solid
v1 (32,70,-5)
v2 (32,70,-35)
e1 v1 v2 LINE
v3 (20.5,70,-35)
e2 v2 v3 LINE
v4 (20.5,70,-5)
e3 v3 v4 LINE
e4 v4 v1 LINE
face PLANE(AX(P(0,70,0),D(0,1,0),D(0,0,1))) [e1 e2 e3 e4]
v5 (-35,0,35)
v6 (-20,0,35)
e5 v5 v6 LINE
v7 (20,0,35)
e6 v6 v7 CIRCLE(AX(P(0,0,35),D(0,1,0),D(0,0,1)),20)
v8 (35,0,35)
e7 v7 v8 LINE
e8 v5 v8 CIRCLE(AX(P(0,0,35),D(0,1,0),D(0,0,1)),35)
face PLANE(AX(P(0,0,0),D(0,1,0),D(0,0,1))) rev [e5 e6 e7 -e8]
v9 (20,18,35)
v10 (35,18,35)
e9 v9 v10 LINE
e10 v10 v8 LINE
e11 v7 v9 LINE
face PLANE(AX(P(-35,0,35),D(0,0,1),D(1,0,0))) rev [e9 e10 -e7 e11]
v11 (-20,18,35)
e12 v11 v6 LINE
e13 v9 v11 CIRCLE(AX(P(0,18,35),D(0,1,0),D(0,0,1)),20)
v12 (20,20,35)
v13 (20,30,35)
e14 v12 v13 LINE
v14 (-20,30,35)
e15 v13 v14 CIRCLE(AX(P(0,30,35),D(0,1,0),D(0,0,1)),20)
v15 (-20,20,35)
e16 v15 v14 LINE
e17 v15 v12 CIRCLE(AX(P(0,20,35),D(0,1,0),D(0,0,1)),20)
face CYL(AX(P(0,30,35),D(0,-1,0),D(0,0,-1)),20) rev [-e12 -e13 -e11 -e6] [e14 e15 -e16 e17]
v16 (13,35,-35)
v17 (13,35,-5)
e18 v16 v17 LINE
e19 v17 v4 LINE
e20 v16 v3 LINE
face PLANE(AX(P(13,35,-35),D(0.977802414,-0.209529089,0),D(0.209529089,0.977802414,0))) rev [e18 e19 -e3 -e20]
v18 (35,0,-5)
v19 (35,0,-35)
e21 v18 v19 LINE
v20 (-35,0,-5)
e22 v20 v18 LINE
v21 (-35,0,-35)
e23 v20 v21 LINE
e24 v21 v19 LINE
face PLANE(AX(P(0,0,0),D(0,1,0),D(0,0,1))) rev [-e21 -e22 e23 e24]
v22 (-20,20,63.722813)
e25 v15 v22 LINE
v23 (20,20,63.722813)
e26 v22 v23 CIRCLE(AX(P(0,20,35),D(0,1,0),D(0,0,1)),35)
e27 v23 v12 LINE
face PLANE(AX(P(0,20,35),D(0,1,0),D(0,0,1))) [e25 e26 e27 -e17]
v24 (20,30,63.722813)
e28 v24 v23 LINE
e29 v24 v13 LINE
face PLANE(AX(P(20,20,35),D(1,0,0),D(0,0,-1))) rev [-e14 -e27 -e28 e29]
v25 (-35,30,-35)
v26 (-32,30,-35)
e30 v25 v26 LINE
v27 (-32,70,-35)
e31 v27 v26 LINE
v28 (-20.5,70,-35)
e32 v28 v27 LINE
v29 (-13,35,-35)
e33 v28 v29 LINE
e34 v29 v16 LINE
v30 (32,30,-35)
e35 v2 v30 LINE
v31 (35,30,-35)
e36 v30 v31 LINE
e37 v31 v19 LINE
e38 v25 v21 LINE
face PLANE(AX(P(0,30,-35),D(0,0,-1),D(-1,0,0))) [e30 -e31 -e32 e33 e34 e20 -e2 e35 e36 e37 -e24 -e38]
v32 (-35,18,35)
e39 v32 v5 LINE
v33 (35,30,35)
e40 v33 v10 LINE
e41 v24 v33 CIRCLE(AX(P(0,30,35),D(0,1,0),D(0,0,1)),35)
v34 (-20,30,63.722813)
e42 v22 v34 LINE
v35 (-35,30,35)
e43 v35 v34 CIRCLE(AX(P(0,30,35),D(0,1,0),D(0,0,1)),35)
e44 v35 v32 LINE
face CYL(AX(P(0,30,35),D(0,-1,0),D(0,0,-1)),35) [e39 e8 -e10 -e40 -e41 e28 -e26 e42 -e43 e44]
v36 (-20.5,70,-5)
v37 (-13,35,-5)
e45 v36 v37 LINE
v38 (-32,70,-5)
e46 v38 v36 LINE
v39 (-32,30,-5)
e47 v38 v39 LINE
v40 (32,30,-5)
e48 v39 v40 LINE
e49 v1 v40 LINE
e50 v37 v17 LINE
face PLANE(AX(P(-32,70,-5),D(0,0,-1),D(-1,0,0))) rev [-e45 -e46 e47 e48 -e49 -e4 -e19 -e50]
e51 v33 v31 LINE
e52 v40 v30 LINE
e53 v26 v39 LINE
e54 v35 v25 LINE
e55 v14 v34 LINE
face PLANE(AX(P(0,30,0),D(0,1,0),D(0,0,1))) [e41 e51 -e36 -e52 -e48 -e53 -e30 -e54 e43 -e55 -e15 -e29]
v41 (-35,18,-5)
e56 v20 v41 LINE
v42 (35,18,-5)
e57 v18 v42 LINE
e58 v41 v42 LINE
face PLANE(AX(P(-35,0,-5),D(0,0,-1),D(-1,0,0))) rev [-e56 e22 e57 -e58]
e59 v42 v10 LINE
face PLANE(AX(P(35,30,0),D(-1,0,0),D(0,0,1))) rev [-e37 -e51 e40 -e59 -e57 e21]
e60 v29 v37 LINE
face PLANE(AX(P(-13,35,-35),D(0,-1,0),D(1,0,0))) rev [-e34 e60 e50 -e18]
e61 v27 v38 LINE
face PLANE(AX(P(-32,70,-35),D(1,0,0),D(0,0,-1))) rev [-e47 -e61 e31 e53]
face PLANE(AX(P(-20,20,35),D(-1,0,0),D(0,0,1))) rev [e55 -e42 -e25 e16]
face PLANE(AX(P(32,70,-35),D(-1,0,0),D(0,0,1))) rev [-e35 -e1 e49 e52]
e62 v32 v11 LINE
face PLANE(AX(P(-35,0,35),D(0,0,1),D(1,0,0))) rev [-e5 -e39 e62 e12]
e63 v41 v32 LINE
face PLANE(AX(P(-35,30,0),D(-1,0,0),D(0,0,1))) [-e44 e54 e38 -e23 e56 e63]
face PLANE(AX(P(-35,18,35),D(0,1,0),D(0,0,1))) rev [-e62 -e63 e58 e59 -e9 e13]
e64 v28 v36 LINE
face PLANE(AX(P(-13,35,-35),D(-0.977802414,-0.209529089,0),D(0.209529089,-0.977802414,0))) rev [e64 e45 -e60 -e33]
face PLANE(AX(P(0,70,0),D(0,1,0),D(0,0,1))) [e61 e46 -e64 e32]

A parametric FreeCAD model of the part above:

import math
import FreeCAD as App
import Part
import Sketcher
Q = App.Units.Quantity


def add_polygon(sketch, points):
    """Adds a closed chain of lines whose ends are joined by coincident constraints."""
    first, n = sketch.GeometryCount, len(points)
    for a, b in zip(points, points[1:] + points[:1]):
        sketch.addGeometry(Part.LineSegment(App.Vector(*a, 0), App.Vector(*b, 0)), False)
    for i in range(n):
        sketch.addConstraint(Sketcher.Constraint("Coincident", first + i, 2, first + (i + 1) % n, 1))

doc = App.newDocument("Part")
params = doc.addObject("Spreadsheet::Sheet", "Params")
for row, (alias, value) in enumerate([
    ("sketch1_diameter", "40 mm"),
    ("sketch1_radius", "35 mm"),
    ("pad1_length", "30 mm"),
    ("sketch2_width", "18 mm"),
    ("sketch2_height", "40 mm"),
    ("pocket1_length", "70 mm"),
    ("sketch3_radius", "20 mm"),
    ("pocket2_length", "10 mm"),
    ("sketch4_width", "64 mm"),
    ("sketch4_height", "30 mm"),
    ("pad2_length", "40 mm"),
    ("sketch5_width", "41 mm"),
    ("sketch5_width2", "26 mm"),
], start=1):
    params.set(f"A{row}", alias)
    params.set(f"B{row}", "=" + value)
    params.setAlias(f"B{row}", alias)

body = doc.addObject("PartDesign::Body", "Body")

# Sketch on XZ plane
sketch1 = doc.addObject("Sketcher::SketchObject", "Sketch")
body.addObject(sketch1)
sketch1.AttachmentSupport = (doc.XZ_Plane, [""])
sketch1.MapMode = "FlatFace"
sketch1.addGeometry([
    Part.ArcOfCircle(Part.Circle(App.Vector(0, 35, 0), App.Vector(0, 0, 1), 35), math.radians(0), math.radians(180)),  # 0
    Part.LineSegment(App.Vector(35, 35, 0), App.Vector(35, -35, 0)),  # 1
    Part.LineSegment(App.Vector(35, -35, 0), App.Vector(-35, -35, 0)),  # 2
    Part.LineSegment(App.Vector(-35, -35, 0), App.Vector(-35, 35, 0)),  # 3
    Part.Circle(App.Vector(0, 35, 0), App.Vector(0, 0, 1), 20),  # 4
], False)
sketch1.addConstraint([
    Sketcher.Constraint("Tangent", 0, 1, 1, 1),
    Sketcher.Constraint("Coincident", 1, 2, 2, 1),
    Sketcher.Constraint("Coincident", 2, 2, 3, 1),
    Sketcher.Constraint("Tangent", 3, 2, 0, 2),
    Sketcher.Constraint("Vertical", 1),
    Sketcher.Constraint("Horizontal", 2),
    Sketcher.Constraint("Vertical", 3),
    Sketcher.Constraint("Coincident", 4, 3, 0, 3),
    Sketcher.Constraint("Symmetric", 0, 1, 2, 2, -1, 1),
    Sketcher.Constraint("Equal", 2, 1),
    Sketcher.Constraint("Diameter", 4, Q("40 mm")),
    Sketcher.Constraint("Radius", 0, Q("35 mm")),
])
sketch1.setExpression("Constraints[10]", "Params.sketch1_diameter")
sketch1.setExpression("Constraints[11]", "Params.sketch1_radius")
pad1 = doc.addObject("PartDesign::Pad", "Pad")
body.addObject(pad1)
pad1.Profile = sketch1
pad1.setExpression("Length", "Params.pad1_length")
pad1.Reversed = True

# Sketch on YZ plane
sketch2 = doc.addObject("Sketcher::SketchObject", "Sketch001")
body.addObject(sketch2)
sketch2.AttachmentSupport = (doc.YZ_Plane, [""])
sketch2.MapMode = "FlatFace"
sketch2.AttachmentOffset = App.Placement(App.Vector(0, 0, 35), App.Rotation())
add_polygon(sketch2, [(18, 35), (0, 35), (0, -5), (18, -5)])  # lines 0-3
sketch2.addConstraint([
    Sketcher.Constraint("Horizontal", 0),
    Sketcher.Constraint("Vertical", 1),
    Sketcher.Constraint("Horizontal", 2),
    Sketcher.Constraint("Vertical", 3),
    Sketcher.Constraint("PointOnObject", 0, 2, -2),
    Sketcher.Constraint("DistanceX", 0, 2, 0, 1, Q("18 mm")),
    Sketcher.Constraint("DistanceY", 1, 2, 1, 1, Q("40 mm")),
    Sketcher.Constraint("DistanceY", -1, 1, 0, 2, Q("35 mm")),
])
sketch2.setExpression("Constraints[9]", "Params.sketch2_width")
sketch2.setExpression("Constraints[10]", "Params.sketch2_height")
pocket1 = doc.addObject("PartDesign::Pocket", "Pocket")
body.addObject(pocket1)
pocket1.Profile = sketch2
pocket1.setExpression("Length", "Params.pocket1_length")

# Sketch on XZ plane
sketch3 = doc.addObject("Sketcher::SketchObject", "Sketch002")
body.addObject(sketch3)
sketch3.AttachmentSupport = (doc.XZ_Plane, [""])
sketch3.MapMode = "FlatFace"
sketch3.AttachmentOffset = App.Placement(App.Vector(0, 0, -20), App.Rotation())
sketch3.addGeometry([
    Part.LineSegment(App.Vector(20, 92, 0), App.Vector(20, 35, 0)),
    Part.ArcOfCircle(Part.Circle(App.Vector(0, 35, 0), App.Vector(0, 0, 1), 20), math.radians(180), math.radians(360)),
    Part.LineSegment(App.Vector(-20, 35, 0), App.Vector(-20, 92, 0)),
    Part.LineSegment(App.Vector(-20, 92, 0), App.Vector(20, 92, 0)),
], False)
sketch3.addConstraint([
    Sketcher.Constraint("Tangent", 0, 2, 1, 2),
    Sketcher.Constraint("Tangent", 1, 1, 2, 1),
    Sketcher.Constraint("Coincident", 2, 2, 3, 1),
    Sketcher.Constraint("Coincident", 3, 2, 0, 1),
    Sketcher.Constraint("Vertical", 0),
    Sketcher.Constraint("Vertical", 2),
    Sketcher.Constraint("Horizontal", 3),
    Sketcher.Constraint("PointOnObject", 1, 3, -2),
    Sketcher.Constraint("Radius", 1, Q("20 mm")),
    Sketcher.Constraint("DistanceY", -1, 1, 1, 3, Q("35 mm")),
    Sketcher.Constraint("DistanceY", 0, 2, 0, 1, Q("56.691085 mm")),
])
sketch3.setExpression("Constraints[8]", "Params.sketch3_radius")
pocket2 = doc.addObject("PartDesign::Pocket", "Pocket001")
body.addObject(pocket2)
pocket2.Profile = sketch3
pocket2.setExpression("Length", "Params.pocket2_length")

# Sketch on XZ plane
sketch4 = doc.addObject("Sketcher::SketchObject", "Sketch003")
body.addObject(sketch4)
sketch4.AttachmentSupport = (doc.XZ_Plane, [""])
sketch4.MapMode = "FlatFace"
sketch4.AttachmentOffset = App.Placement(App.Vector(0, 0, -30), App.Rotation())
add_polygon(sketch4, [(-32, -35), (-32, -5), (32, -5), (32, -35)])  # lines 0-3
sketch4.addConstraint([
    Sketcher.Constraint("Vertical", 0),
    Sketcher.Constraint("Horizontal", 1),
    Sketcher.Constraint("Vertical", 2),
    Sketcher.Constraint("Horizontal", 3),
    Sketcher.Constraint("DistanceX", 1, 1, 1, 2, Q("64 mm")),
    Sketcher.Constraint("DistanceY", 0, 1, 0, 2, Q("30 mm")),
    Sketcher.Constraint("DistanceX", 0, 2, -1, 1, Q("32 mm")),
    Sketcher.Constraint("DistanceY", 0, 2, -1, 1, Q("5 mm")),
])
sketch4.setExpression("Constraints[8]", "Params.sketch4_width")
sketch4.setExpression("Constraints[9]", "Params.sketch4_height")
pad2 = doc.addObject("PartDesign::Pad", "Pad001")
body.addObject(pad2)
pad2.Profile = sketch4
pad2.setExpression("Length", "Params.pad2_length")
pad2.Reversed = True

# Sketch on XY plane
sketch5 = doc.addObject("Sketcher::SketchObject", "Sketch004")
body.addObject(sketch5)
sketch5.AttachmentSupport = (doc.XY_Plane, [""])
sketch5.MapMode = "FlatFace"
sketch5.AttachmentOffset = App.Placement(App.Vector(0, 0, -5), App.Rotation())
add_polygon(sketch5, [(20, 70), (-20, 70), (-13, 35), (13, 35)])  # lines 0-3
sketch5.addConstraint([
    Sketcher.Constraint("Horizontal", 0),
    Sketcher.Constraint("Horizontal", 2),
    Sketcher.Constraint("Equal", 1, 3),
    Sketcher.Constraint("DistanceX", 0, 2, 0, 1, Q("41 mm")),
    Sketcher.Constraint("DistanceX", 2, 1, 2, 2, Q("26 mm")),
    Sketcher.Constraint("DistanceY", -1, 1, 0, 2, Q("70 mm")),
    Sketcher.Constraint("DistanceX", 1, 2, -1, 1, Q("13 mm")),
    Sketcher.Constraint("DistanceY", -1, 1, 1, 2, Q("35 mm")),
])
sketch5.setExpression("Constraints[7]", "Params.sketch5_width")
sketch5.setExpression("Constraints[8]", "Params.sketch5_width2")
pocket3 = doc.addObject("PartDesign::Pocket", "Pocket002")
body.addObject(pocket3)
pocket3.Profile = sketch5
pocket3.Type = "ThroughAll"

doc.recompute()
